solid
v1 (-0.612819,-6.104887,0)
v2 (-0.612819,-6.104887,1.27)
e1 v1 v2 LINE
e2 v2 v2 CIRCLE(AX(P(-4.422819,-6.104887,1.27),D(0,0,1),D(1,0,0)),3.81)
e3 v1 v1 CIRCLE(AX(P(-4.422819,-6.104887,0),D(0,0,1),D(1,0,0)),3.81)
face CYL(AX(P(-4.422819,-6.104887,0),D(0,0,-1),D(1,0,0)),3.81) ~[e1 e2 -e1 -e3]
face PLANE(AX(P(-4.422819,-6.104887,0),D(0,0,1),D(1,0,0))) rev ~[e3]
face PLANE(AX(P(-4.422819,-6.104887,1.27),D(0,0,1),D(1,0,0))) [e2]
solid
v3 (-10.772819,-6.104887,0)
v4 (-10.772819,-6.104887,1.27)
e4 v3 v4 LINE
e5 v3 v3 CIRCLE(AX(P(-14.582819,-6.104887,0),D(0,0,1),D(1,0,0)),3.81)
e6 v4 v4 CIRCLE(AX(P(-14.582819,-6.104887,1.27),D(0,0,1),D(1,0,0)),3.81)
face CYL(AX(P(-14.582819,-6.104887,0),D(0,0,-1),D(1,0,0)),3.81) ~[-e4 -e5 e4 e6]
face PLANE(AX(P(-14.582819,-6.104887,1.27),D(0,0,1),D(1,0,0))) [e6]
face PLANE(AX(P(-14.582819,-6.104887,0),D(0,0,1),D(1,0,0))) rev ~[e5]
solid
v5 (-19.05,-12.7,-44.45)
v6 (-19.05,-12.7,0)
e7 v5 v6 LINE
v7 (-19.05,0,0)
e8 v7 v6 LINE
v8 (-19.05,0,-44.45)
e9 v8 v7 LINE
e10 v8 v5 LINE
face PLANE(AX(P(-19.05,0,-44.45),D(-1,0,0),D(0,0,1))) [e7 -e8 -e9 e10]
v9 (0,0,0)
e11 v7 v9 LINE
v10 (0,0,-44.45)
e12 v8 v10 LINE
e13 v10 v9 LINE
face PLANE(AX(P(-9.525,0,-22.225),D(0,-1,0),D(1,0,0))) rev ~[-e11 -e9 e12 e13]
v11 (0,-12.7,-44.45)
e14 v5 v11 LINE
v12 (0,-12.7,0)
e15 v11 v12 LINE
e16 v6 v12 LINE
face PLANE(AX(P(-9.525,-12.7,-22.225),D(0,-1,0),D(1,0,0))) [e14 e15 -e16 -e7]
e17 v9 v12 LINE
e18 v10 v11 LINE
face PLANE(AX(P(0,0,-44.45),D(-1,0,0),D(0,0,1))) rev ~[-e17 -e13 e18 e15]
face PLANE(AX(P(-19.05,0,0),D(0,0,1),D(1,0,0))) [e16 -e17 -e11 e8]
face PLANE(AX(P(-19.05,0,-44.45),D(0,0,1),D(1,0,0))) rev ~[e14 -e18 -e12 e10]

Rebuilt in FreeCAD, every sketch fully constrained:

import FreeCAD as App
import Part
import Sketcher
Q = App.Units.Quantity


def add_polygon(sketch, points):
    """Adds a closed chain of lines whose ends are joined by coincident constraints."""
    first, n = sketch.GeometryCount, len(points)
    for a, b in zip(points, points[1:] + points[:1]):
        sketch.addGeometry(Part.LineSegment(App.Vector(*a, 0), App.Vector(*b, 0)), False)
    for i in range(n):
        sketch.addConstraint(Sketcher.Constraint("Coincident", first + i, 2, first + (i + 1) % n, 1))

doc = App.newDocument("Part")
params = doc.addObject("Spreadsheet::Sheet", "Params")
for row, (alias, value) in enumerate([
    ("sketch1_width", "0.75 in"),
    ("sketch1_height", "1.75 in"),
    ("pad1_length", "0.5 in"),
    ("sketch2_diameter", "0.3 in"),
    ("pad2_length", "0.05 in"),
], start=1):
    params.set(f"A{row}", alias)
    params.set(f"B{row}", "=" + value)
    params.setAlias(f"B{row}", alias)

body = doc.addObject("PartDesign::Body", "Body")

# Sketch on XZ plane
sketch1 = doc.addObject("Sketcher::SketchObject", "Sketch")
body.addObject(sketch1)
sketch1.AttachmentSupport = (doc.XZ_Plane, [""])
sketch1.MapMode = "FlatFace"
add_polygon(sketch1, [(-19.05, 0), (-19.05, -44.45), (0, -44.45), (0, 0)])  # lines 0-3
sketch1.addConstraint(Sketcher.Constraint("Vertical", 0))
sketch1.addConstraint(Sketcher.Constraint("Horizontal", 1))
sketch1.addConstraint(Sketcher.Constraint("Vertical", 2))
sketch1.addConstraint(Sketcher.Constraint("Horizontal", 3))
sketch1.addConstraint(Sketcher.Constraint("Coincident", 2, 2, -1, 1))
sketch1.addConstraint(Sketcher.Constraint("DistanceX", 1, 1, 1, 2, Q("0.75 in")))
sketch1.addConstraint(Sketcher.Constraint("DistanceY", 0, 2, 0, 1, Q("1.75 in")))
sketch1.setExpression("Constraints[9]", "Params.sketch1_width")
sketch1.setExpression("Constraints[10]", "Params.sketch1_height")
pad1 = doc.addObject("PartDesign::Pad", "Pad")
body.addObject(pad1)
pad1.Profile = sketch1
pad1.setExpression("Length", "Params.pad1_length")
body2 = doc.addObject("PartDesign::Body", "Body001")
body2.AllowCompound = True

# Sketch on XY plane
sketch2 = doc.addObject("Sketcher::SketchObject", "Sketch001")
body2.addObject(sketch2)
sketch2.AttachmentSupport = (doc.getObject("XY_Plane001"), [""])
sketch2.MapMode = "FlatFace"
sketch2.addGeometry(Part.Circle(App.Vector(-14.582819, -6.104887, 0), App.Vector(0, 0, 1), 3.81), False)
sketch2.addGeometry(Part.Circle(App.Vector(-4.422819, -6.104887, 0), App.Vector(0, 0, 1), 3.81), False)
sketch2.addConstraint(Sketcher.Constraint("Equal", 0, 1))
sketch2.addConstraint(Sketcher.Constraint("Horizontal", 0, 3, 1, 3))
sketch2.addConstraint(Sketcher.Constraint("Diameter", 0, Q("0.3 in")))
sketch2.addConstraint(Sketcher.Constraint("DistanceX", 0, 3, 1, 3, Q("0.4 in")))
sketch2.addConstraint(Sketcher.Constraint("DistanceX", 0, 3, -1, 1, 14.582819))
sketch2.addConstraint(Sketcher.Constraint("DistanceY", 0, 3, -1, 1, 6.104887))
sketch2.setExpression("Constraints[2]", "Params.sketch2_diameter")
pad2 = doc.addObject("PartDesign::Pad", "Pad001")
body2.addObject(pad2)
pad2.Profile = sketch2
pad2.setExpression("Length", "Params.pad2_length")

doc.recompute()
